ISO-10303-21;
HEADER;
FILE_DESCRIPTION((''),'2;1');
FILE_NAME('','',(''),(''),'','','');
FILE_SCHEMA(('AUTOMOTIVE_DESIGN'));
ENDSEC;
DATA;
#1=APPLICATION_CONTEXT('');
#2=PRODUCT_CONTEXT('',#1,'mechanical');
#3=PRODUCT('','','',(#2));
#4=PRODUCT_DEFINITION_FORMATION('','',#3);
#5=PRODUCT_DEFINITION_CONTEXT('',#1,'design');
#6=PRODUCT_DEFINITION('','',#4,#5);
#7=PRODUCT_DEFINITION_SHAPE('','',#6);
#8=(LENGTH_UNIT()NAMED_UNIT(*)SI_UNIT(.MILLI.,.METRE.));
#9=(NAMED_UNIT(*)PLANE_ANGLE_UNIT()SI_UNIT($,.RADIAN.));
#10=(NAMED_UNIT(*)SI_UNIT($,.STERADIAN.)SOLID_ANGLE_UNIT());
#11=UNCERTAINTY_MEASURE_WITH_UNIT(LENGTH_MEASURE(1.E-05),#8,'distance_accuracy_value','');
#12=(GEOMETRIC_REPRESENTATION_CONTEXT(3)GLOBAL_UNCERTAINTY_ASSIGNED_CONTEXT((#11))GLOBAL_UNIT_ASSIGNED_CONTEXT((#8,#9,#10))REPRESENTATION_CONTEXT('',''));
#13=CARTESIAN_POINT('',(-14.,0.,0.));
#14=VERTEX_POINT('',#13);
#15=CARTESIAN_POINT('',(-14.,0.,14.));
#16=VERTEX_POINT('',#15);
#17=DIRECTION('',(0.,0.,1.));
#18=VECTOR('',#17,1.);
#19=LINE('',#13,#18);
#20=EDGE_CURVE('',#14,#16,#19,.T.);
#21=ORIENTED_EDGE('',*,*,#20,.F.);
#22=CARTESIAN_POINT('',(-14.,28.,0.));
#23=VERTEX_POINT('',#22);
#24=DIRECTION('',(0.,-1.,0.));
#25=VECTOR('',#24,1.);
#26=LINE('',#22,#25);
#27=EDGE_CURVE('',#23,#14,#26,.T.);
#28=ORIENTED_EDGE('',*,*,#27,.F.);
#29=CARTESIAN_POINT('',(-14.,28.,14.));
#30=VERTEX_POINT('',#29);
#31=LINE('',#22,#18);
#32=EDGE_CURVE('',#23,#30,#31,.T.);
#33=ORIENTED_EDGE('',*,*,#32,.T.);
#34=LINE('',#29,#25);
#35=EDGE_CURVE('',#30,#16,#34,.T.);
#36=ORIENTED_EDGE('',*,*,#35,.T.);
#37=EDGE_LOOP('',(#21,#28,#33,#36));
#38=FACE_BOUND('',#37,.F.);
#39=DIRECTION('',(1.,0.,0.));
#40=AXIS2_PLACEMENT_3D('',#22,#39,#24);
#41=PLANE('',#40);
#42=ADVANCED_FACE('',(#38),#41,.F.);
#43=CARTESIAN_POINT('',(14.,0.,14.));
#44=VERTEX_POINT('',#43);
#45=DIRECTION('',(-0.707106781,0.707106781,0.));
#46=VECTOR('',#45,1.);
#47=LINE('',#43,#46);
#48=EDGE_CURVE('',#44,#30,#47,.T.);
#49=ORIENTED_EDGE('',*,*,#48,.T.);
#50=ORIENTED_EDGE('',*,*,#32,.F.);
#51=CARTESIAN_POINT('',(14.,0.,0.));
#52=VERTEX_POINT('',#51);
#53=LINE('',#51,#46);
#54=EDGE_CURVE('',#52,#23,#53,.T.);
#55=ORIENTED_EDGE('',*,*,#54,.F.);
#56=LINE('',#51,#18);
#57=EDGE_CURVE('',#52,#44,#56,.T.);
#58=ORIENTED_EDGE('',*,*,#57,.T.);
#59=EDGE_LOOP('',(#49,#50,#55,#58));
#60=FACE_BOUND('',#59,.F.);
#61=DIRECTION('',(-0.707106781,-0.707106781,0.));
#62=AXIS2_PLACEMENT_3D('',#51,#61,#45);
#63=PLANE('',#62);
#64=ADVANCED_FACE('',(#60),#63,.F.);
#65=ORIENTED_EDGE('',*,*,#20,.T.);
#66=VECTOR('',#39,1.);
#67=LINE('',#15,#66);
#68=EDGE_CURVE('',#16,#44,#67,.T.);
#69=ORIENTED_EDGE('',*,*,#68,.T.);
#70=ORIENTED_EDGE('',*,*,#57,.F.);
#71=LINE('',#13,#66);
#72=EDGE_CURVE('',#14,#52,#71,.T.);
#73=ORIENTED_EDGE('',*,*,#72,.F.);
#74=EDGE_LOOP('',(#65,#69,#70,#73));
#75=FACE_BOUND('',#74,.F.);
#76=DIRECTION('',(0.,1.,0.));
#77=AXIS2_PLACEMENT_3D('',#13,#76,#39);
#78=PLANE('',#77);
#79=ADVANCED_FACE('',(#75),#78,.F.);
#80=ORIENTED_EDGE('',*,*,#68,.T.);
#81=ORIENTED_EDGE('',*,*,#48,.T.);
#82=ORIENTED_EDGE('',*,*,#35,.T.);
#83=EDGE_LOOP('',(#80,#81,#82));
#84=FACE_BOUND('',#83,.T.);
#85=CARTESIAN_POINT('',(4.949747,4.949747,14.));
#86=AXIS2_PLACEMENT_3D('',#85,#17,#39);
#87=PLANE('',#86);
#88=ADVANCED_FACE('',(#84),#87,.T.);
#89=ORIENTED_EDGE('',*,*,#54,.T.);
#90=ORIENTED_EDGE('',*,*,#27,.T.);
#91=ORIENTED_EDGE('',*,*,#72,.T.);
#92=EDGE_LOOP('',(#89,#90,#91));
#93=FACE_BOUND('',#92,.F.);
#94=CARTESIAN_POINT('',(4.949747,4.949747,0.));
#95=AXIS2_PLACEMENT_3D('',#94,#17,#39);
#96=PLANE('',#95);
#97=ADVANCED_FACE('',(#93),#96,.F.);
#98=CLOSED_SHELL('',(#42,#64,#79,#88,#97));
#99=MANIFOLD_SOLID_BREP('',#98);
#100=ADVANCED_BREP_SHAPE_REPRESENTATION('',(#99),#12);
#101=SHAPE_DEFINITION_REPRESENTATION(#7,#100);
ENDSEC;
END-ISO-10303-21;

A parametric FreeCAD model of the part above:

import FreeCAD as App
import Part
import Sketcher

doc = App.newDocument("Part")
params = doc.addObject("Spreadsheet::Sheet", "Params")
for row, (alias, value) in enumerate([
    ("sketch1_width", "28 mm"),
    ("pad1_length", "14 mm"),
], start=1):
    params.set(f"A{row}", alias)
    params.set(f"B{row}", "=" + value)
    params.setAlias(f"B{row}", alias)

body = doc.addObject("PartDesign::Body", "Body")

# Sketch on XY plane
sketch1 = body.newObject("Sketcher::SketchObject", "Sketch")
sketch1.AttachmentSupport = (doc.getObject("XY_Plane"), [""])
sketch1.MapMode = "FlatFace"
sketch1.addGeometry([
    Part.LineSegment(App.Vector(14, 0, 0), App.Vector(-14, 28, 0)),
    Part.LineSegment(App.Vector(-14, 28, 0), App.Vector(-14, 0, 0)),
    Part.LineSegment(App.Vector(-14, 0, 0), App.Vector(14, 0, 0)),
], False)
sketch1.addConstraint([
    Sketcher.Constraint("Coincident", 0, 2, 1, 1),
    Sketcher.Constraint("Coincident", 1, 2, 2, 1),
    Sketcher.Constraint("Coincident", 2, 2, 0, 1),
    Sketcher.Constraint("Vertical", 1),
    Sketcher.Constraint("Horizontal", 2),
    Sketcher.Constraint("Symmetric", 1, 2, 2, 2, -1, 1),
    Sketcher.Constraint("Equal", 2, 1),
    Sketcher.Constraint("DistanceX", 2, 1, 2, 2, 28.0),
])
sketch1.setExpression("Constraints[7]", "Params.sketch1_width")
pad1 = body.newObject("PartDesign::Pad", "Pad")
pad1.Profile = sketch1
pad1.setExpression("Length", "Params.pad1_length")

doc.recompute()
